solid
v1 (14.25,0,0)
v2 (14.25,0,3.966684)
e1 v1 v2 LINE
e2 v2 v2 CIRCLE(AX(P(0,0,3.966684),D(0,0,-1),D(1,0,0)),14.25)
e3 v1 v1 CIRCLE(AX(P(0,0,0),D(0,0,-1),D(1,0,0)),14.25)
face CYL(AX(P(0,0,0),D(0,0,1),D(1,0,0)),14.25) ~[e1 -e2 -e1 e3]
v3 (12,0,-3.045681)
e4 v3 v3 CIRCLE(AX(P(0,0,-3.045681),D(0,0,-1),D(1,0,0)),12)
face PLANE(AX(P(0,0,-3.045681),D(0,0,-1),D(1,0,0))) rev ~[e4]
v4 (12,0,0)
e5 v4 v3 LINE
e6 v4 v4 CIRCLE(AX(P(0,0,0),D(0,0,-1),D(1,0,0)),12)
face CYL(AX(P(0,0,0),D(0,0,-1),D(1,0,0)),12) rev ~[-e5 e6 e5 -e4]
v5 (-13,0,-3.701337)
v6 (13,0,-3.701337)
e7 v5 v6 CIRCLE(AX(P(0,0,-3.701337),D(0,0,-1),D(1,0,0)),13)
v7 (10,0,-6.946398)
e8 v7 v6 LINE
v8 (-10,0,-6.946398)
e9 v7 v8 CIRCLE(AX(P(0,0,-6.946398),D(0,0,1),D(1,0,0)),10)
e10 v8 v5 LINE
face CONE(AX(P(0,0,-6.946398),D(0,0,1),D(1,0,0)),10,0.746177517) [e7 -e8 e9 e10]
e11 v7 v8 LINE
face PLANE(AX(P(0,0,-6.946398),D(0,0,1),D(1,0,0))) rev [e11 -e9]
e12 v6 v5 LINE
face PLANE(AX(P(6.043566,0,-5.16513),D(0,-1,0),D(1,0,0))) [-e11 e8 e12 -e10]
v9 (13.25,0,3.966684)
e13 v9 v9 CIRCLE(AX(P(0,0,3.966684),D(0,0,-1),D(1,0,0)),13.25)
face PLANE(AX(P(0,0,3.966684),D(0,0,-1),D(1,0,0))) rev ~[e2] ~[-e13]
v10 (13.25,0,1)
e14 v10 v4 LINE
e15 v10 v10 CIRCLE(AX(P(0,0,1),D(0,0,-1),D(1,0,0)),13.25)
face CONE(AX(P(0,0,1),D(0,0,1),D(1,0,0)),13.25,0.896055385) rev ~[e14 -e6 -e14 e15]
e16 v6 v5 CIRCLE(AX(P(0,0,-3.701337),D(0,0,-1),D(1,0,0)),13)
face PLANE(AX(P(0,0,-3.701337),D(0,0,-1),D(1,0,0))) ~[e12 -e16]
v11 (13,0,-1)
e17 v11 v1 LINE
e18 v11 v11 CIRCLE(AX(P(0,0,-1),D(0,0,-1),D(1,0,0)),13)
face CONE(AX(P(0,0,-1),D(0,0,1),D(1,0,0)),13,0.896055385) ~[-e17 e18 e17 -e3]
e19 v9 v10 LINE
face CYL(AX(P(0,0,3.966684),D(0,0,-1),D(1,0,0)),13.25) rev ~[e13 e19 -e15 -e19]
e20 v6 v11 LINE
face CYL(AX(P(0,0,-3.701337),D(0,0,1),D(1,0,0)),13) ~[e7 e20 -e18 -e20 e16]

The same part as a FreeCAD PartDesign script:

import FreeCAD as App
import Part
import Sketcher

V = App.Vector
Q = App.Units.Quantity

doc = App.newDocument("Part")
body = doc.addObject("PartDesign::Body", "Body")

sketch1 = body.newObject("Sketcher::SketchObject", "Sketch")
sketch1.AttachmentSupport = (doc.getObject("XZ_Plane"), [""])
sketch1.MapMode = "FlatFace"
sketch1.addGeometry([
    Part.LineSegment(V(14.2, 4, 0), V(13.2, 4, 0)),
    Part.LineSegment(V(13.2, 4, 0), V(13.2, 1, 0)),
    Part.LineSegment(V(13.2, 1, 0), V(12, 0, 0)),
    Part.LineSegment(V(12, 0, 0), V(12, -3, 0)),
    Part.LineSegment(V(12, -3, 0), V(0, -3, 0)),
    Part.LineSegment(V(0, -3, 0), V(0, -3.7, 0)),
    Part.LineSegment(V(0, -3.7, 0), V(13, -3.7, 0)),
    Part.LineSegment(V(13, -3.7, 0), V(13, -1, 0)),
    Part.LineSegment(V(13, -1, 0), V(14.2, 0, 0)),
    Part.LineSegment(V(14.2, 0, 0), V(14.2, 4, 0)),
], False)
sketch1.addConstraint([
    Sketcher.Constraint("Coincident", 0, 2, 1, 1),
    Sketcher.Constraint("Coincident", 1, 2, 2, 1),
    Sketcher.Constraint("Coincident", 2, 2, 3, 1),
    Sketcher.Constraint("Coincident", 3, 2, 4, 1),
    Sketcher.Constraint("Coincident", 4, 2, 5, 1),
    Sketcher.Constraint("Coincident", 5, 2, 6, 1),
    Sketcher.Constraint("Coincident", 6, 2, 7, 1),
    Sketcher.Constraint("Coincident", 7, 2, 8, 1),
    Sketcher.Constraint("Coincident", 8, 2, 9, 1),
    Sketcher.Constraint("Coincident", 9, 2, 0, 1),
    Sketcher.Constraint("Horizontal", 0),
    Sketcher.Constraint("Vertical", 1),
    Sketcher.Constraint("Vertical", 3),
    Sketcher.Constraint("Horizontal", 4),
    Sketcher.Constraint("Vertical", 5),
    Sketcher.Constraint("Horizontal", 6),
    Sketcher.Constraint("Vertical", 7),
    Sketcher.Constraint("Vertical", 9),
    Sketcher.Constraint("PointOnObject", 2, 2, -1),
    Sketcher.Constraint("PointOnObject", 4, 2, -2),
    Sketcher.Constraint("PointOnObject", 8, 2, -1),
    Sketcher.Constraint("Parallel", 2, 8),
    Sketcher.Constraint("Equal", 2, 8),
    Sketcher.Constraint("DistanceX", 0, 2, 0, 1, Q("1 mm")),
    Sketcher.Constraint("DistanceX", 4, 2, 4, 1, Q("12 mm")),
    Sketcher.Constraint("DistanceY", -1, 1, 1, 2, Q("1 mm")),
    Sketcher.Constraint("DistanceX", -1, 1, 0, 2, Q("13.25 mm")),
    Sketcher.Constraint("DistanceY", 3, 2, 3, 1, Q("3.045681 mm")),
    Sketcher.Constraint("DistanceY", 1, 2, 1, 1, Q("2.966684 mm")),
    Sketcher.Constraint("DistanceY", 5, 2, 5, 1, Q("0.655656 mm")),
])
revolution = body.newObject("PartDesign::Revolution", "Revolution")
revolution.Profile = sketch1
revolution.ReferenceAxis = (sketch1, ["V_Axis"])
revolution.Angle = 360

sketch2 = body.newObject("Sketcher::SketchObject", "Sketch001")
sketch2.AttachmentSupport = (doc.getObject("XZ_Plane"), [""])
sketch2.MapMode = "FlatFace"
sketch2.addGeometry([
    Part.LineSegment(V(10, -6.9, 0), V(13, -3.7, 0)),
    Part.LineSegment(V(13, -3.7, 0), V(0, -3.7, 0)),
    Part.LineSegment(V(0, -3.7, 0), V(0, -6.9, 0)),
    Part.LineSegment(V(0, -6.9, 0), V(10, -6.9, 0)),
], False)
sketch2.addConstraint([
    Sketcher.Constraint("Coincident", 0, 2, 1, 1),
    Sketcher.Constraint("Coincident", 1, 2, 2, 1),
    Sketcher.Constraint("Coincident", 2, 2, 3, 1),
    Sketcher.Constraint("Coincident", 3, 2, 0, 1),
    Sketcher.Constraint("Horizontal", 1),
    Sketcher.Constraint("Vertical", 2),
    Sketcher.Constraint("Horizontal", 3),
    Sketcher.Constraint("PointOnObject", 1, 2, -2),
    Sketcher.Constraint("DistanceX", 1, 2, 1, 1, Q("13 mm")),
    Sketcher.Constraint("DistanceX", 3, 1, 3, 2, Q("10 mm")),
    Sketcher.Constraint("DistanceY", 2, 2, 2, 1, Q("3.245061 mm")),
    Sketcher.Constraint("DistanceY", 2, 2, -1, 1, Q("6.946398 mm")),
])
revolution2 = body.newObject("PartDesign::Revolution", "Revolution001")
revolution2.Profile = sketch2
revolution2.ReferenceAxis = (sketch2, ["V_Axis"])
revolution2.Angle = 180

doc.recompute()
